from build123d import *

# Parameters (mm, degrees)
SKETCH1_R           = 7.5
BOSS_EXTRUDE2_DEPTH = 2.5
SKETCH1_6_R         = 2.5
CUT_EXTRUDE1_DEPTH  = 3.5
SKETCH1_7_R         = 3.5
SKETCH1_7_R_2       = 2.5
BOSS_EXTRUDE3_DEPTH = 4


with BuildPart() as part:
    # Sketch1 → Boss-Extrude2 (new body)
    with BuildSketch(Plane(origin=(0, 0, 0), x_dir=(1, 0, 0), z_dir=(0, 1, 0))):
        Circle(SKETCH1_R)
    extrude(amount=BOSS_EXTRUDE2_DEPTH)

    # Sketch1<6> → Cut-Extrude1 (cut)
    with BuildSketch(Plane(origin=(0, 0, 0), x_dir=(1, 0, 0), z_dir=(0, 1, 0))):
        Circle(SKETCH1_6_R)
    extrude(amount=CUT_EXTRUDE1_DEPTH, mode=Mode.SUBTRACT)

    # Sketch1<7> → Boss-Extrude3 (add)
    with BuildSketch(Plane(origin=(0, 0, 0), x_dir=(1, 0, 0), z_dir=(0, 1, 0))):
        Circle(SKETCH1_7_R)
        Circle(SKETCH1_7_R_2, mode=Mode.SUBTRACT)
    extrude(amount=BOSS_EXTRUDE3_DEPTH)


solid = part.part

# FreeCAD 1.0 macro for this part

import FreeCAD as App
import Part
import Sketcher

doc = App.newDocument("Part")
body = doc.addObject("PartDesign::Body", "Body")

# Sketch on XZ plane
sketch1 = doc.addObject("Sketcher::SketchObject", "Sketch")
body.addObject(sketch1)
sketch1.AttachmentSupport = (doc.XZ_Plane, [""])
sketch1.MapMode = "FlatFace"
sketch1.addGeometry(Part.Circle(App.Vector(0, 0, 0), App.Vector(0, 0, 1), 8), False)
sketch1.addConstraint([
    Sketcher.Constraint("Coincident", 0, 3, -1, 1),
    Sketcher.Constraint("Diameter", 0, 15.0),
])
pad1 = doc.addObject("PartDesign::Pad", "Pad")
body.addObject(pad1)
pad1.Profile = sketch1
pad1.Length = 2.5
pad1.Reversed = True

# Sketch on XZ plane
sketch2 = doc.addObject("Sketcher::SketchObject", "Sketch001")
body.addObject(sketch2)
sketch2.AttachmentSupport = (doc.XZ_Plane, [""])
sketch2.MapMode = "FlatFace"
sketch2.addGeometry(Part.Circle(App.Vector(0, 0, 0), App.Vector(0, 0, 1), 2.5), False)
sketch2.addConstraint([
    Sketcher.Constraint("Coincident", 0, 3, -1, 1),
    Sketcher.Constraint("Diameter", 0, 5.0),
])
pocket1 = doc.addObject("PartDesign::Pocket", "Pocket")
body.addObject(pocket1)
pocket1.Profile = sketch2
pocket1.Length = 3.5

# Sketch on XZ plane
sketch3 = doc.addObject("Sketcher::SketchObject", "Sketch002")
body.addObject(sketch3)
sketch3.AttachmentSupport = (doc.XZ_Plane, [""])
sketch3.MapMode = "FlatFace"
sketch3.addGeometry([
    Part.Circle(App.Vector(0, 0, 0), App.Vector(0, 0, 1), 3.5),
    Part.Circle(App.Vector(0, 0, 0), App.Vector(0, 0, 1), 2.5),
], False)
sketch3.addConstraint([
    Sketcher.Constraint("Coincident", 0, 3, -1, 1),
    Sketcher.Constraint("Coincident", 1, 3, -1, 1),
    Sketcher.Constraint("Diameter", 0, 7.0),
    Sketcher.Constraint("Diameter", 1, 5.0),
])
pad2 = doc.addObject("PartDesign::Pad", "Pad001")
body.addObject(pad2)
pad2.Profile = sketch3
pad2.Length = 4
pad2.Reversed = True

doc.recompute()
